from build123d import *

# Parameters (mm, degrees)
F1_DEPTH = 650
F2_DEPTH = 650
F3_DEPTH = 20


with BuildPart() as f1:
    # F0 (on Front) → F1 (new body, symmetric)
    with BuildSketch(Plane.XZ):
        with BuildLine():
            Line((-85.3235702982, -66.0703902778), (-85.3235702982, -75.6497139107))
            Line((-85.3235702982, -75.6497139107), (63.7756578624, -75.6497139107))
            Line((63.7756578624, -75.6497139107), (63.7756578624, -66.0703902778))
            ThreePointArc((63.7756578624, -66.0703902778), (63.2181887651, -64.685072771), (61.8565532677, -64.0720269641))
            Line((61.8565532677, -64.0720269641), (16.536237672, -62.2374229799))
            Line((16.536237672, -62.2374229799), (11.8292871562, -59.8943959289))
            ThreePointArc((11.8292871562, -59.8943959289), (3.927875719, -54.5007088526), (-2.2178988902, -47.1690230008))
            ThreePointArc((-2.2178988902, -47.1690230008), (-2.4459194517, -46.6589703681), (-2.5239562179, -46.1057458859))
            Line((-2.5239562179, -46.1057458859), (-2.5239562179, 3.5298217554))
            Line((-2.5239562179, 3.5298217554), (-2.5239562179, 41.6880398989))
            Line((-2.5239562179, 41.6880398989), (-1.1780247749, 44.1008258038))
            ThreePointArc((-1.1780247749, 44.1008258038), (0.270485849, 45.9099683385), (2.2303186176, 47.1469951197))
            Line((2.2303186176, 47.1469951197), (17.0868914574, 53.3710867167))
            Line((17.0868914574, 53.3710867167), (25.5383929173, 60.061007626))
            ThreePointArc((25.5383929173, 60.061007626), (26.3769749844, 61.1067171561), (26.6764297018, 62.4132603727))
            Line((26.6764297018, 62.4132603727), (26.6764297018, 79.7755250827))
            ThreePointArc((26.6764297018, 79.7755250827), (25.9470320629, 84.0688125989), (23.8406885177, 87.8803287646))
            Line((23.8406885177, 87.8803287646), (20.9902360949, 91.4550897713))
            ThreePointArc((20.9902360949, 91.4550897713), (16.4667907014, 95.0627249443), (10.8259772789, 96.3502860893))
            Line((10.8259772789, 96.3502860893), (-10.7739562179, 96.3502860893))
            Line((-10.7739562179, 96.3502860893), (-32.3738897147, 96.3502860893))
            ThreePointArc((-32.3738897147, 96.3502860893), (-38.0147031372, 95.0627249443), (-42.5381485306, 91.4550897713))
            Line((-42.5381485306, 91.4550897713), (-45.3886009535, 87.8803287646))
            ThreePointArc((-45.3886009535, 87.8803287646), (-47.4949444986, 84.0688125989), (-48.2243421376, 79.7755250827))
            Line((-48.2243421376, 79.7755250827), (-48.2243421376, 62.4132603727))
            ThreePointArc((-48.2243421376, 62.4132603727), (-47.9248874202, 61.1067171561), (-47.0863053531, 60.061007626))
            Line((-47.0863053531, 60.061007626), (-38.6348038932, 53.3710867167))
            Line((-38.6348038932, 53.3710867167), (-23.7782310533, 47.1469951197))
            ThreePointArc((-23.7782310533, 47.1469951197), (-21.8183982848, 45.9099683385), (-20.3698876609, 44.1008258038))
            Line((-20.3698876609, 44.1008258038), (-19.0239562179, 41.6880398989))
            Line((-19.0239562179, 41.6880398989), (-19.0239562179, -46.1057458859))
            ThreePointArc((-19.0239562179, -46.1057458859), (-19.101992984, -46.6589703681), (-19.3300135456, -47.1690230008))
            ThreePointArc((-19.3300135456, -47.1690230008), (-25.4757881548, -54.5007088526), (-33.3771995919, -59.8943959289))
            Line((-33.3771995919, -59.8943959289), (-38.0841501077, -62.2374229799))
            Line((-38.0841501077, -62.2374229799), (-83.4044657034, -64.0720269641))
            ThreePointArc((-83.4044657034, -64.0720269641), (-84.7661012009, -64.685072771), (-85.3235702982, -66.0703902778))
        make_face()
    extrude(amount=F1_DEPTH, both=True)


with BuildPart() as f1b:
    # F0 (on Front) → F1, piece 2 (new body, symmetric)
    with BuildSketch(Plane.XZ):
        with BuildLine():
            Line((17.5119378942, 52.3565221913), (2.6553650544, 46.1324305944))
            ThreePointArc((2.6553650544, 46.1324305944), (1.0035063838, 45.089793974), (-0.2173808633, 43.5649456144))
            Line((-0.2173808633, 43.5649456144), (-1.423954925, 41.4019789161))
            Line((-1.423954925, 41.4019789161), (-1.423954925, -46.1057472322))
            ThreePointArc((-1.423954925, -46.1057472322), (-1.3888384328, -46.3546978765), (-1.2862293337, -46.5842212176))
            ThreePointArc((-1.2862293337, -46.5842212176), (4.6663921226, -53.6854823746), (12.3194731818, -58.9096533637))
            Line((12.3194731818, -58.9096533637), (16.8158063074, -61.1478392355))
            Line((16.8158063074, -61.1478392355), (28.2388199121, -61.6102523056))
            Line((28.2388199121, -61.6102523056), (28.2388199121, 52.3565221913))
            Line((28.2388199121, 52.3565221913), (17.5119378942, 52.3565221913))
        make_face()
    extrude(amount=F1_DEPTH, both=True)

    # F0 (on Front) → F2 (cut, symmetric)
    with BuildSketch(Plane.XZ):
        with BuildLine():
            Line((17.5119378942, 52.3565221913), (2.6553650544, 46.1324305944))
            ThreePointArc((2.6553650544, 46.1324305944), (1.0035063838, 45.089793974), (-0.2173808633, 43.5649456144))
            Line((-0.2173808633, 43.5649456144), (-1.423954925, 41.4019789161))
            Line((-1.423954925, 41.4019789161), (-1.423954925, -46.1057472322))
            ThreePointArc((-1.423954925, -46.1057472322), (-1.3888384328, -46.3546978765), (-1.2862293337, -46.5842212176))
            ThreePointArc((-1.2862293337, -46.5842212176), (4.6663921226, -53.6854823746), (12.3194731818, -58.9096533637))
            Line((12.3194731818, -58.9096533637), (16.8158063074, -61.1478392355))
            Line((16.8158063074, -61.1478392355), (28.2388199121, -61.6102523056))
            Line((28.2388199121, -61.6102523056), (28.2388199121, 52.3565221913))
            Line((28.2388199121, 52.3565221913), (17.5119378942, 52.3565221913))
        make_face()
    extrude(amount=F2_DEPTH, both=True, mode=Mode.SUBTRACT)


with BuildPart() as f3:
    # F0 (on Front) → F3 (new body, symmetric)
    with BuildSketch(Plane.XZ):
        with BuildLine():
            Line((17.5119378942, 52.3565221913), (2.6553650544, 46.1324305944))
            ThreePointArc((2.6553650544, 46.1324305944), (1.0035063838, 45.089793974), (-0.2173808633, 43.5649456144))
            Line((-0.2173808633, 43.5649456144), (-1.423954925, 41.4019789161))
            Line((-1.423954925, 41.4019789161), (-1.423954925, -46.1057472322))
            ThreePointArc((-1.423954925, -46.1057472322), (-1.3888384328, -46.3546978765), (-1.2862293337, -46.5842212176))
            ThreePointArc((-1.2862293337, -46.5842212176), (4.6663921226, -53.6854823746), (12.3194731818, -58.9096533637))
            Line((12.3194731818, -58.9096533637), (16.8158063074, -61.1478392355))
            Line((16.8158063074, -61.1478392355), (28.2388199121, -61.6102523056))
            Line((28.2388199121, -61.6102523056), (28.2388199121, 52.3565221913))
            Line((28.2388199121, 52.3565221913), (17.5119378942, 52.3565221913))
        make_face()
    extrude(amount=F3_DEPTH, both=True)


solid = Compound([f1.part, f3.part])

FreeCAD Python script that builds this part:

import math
import FreeCAD as App
import Part
import Sketcher

doc = App.newDocument("Part")
params = doc.addObject("Spreadsheet::Sheet", "Params")
for row, (alias, value) in enumerate([
    ("sketch1_radius", "2 mm"),
    ("sketch1_radius2", "35 mm"),
    ("sketch1_radius3", "7 mm"),
    ("sketch1_radius4", "3 mm"),
    ("sketch1_radius5", "13 mm"),
    ("pad1_length", "1300 mm"),
    ("sketch2_radius", "5.899999 mm"),
    ("sketch2_radius2", "0.899999 mm"),
    ("sketch2_radius3", "33.899999 mm"),
    ("pad2_length", "1300 mm"),
    ("sketch3_radius", "5.899999 mm"),
    ("sketch3_radius2", "0.899999 mm"),
    ("sketch3_radius3", "33.899999 mm"),
    ("pocket1_length", "1300 mm"),
    ("sketch4_radius", "5.899999 mm"),
    ("sketch4_radius2", "0.899999 mm"),
    ("sketch4_radius3", "33.899999 mm"),
    ("pad3_length", "40 mm"),
], start=1):
    params.set(f"A{row}", alias)
    params.set(f"B{row}", "=" + value)
    params.setAlias(f"B{row}", alias)

body = doc.addObject("PartDesign::Body", "Body")

sketch1 = doc.addObject("Sketcher::SketchObject", "Sketch")
body.addObject(sketch1)
sketch1.AttachmentSupport = (doc.XZ_Plane, [""])
sketch1.MapMode = "FlatFace"
sketch1.addGeometry(Part.LineSegment(App.Vector(-85.3, -66.1, 0), App.Vector(-85.3, -75.6, 0)), False)
sketch1.addGeometry(Part.LineSegment(App.Vector(-85.3, -75.6, 0), App.Vector(63.8, -75.6, 0)), False)
sketch1.addGeometry(Part.LineSegment(App.Vector(63.8, -75.6, 0), App.Vector(63.8, -66.1, 0)), False)
sketch1.addGeometry(Part.ArcOfCircle(Part.Circle(App.Vector(61.8, -66.1, 0), App.Vector(0, 0, 1), 2), math.radians(0), math.radians(88)), False)
sketch1.addGeometry(Part.LineSegment(App.Vector(61.9, -64.1, 0), App.Vector(16.5, -62.2, 0)), False)
sketch1.addGeometry(Part.LineSegment(App.Vector(16.5, -62.2, 0), App.Vector(11.8, -59.9, 0)), False)
sketch1.addGeometry(Part.ArcOfCircle(Part.Circle(App.Vector(27.4, -28.6, 0), App.Vector(0, 0, 1), 35), math.radians(-148), math.radians(-116)), False)
sketch1.addGeometry(Part.ArcOfCircle(Part.Circle(App.Vector(-0.5, -46.1, 0), App.Vector(0, 0, 1), 2), math.radians(-180), math.radians(-148)), False)
sketch1.addGeometry(Part.LineSegment(App.Vector(-2.5, -46.1, 0), App.Vector(-2.5, 41.7, 0)), False)
sketch1.addGeometry(Part.LineSegment(App.Vector(-2.5, 41.7, 0), App.Vector(-1.2, 44.1, 0)), False)
sketch1.addGeometry(Part.ArcOfCircle(Part.Circle(App.Vector(4.9, 40.7, 0), App.Vector(0, 0, 1), 7), math.radians(113), math.radians(151)), False)
sketch1.addGeometry(Part.LineSegment(App.Vector(2.2, 47.1, 0), App.Vector(17.1, 53.4, 0)), False)
sketch1.addGeometry(Part.LineSegment(App.Vector(17.1, 53.4, 0), App.Vector(25.5, 60.1, 0)), False)
sketch1.addGeometry(Part.ArcOfCircle(Part.Circle(App.Vector(23.7, 62.4, 0), App.Vector(0, 0, 1), 3), math.radians(-52), math.radians(0)), False)
sketch1.addGeometry(Part.LineSegment(App.Vector(26.7, 62.4, 0), App.Vector(26.7, 79.8, 0)), False)
sketch1.addGeometry(Part.ArcOfCircle(Part.Circle(App.Vector(13.7, 79.8, 0), App.Vector(0, 0, 1), 13), math.radians(0), math.radians(39)), False)
sketch1.addGeometry(Part.LineSegment(App.Vector(23.8, 87.9, 0), App.Vector(21, 91.5, 0)), False)
sketch1.addGeometry(Part.ArcOfCircle(Part.Circle(App.Vector(10.8, 83.4, 0), App.Vector(0, 0, 1), 13), math.radians(39), math.radians(90)), False)
sketch1.addGeometry(Part.LineSegment(App.Vector(10.8, 96.4, 0), App.Vector(-32.4, 96.4, 0)), False)
sketch1.addGeometry(Part.ArcOfCircle(Part.Circle(App.Vector(-32.4, 83.4, 0), App.Vector(0, 0, 1), 13), math.radians(90), math.radians(141)), False)
sketch1.addGeometry(Part.LineSegment(App.Vector(-42.5, 91.5, 0), App.Vector(-45.4, 87.9, 0)), False)
sketch1.addGeometry(Part.ArcOfCircle(Part.Circle(App.Vector(-35.2, 79.8, 0), App.Vector(0, 0, 1), 13), math.radians(141), math.radians(180)), False)
sketch1.addGeometry(Part.LineSegment(App.Vector(-48.2, 79.8, 0), App.Vector(-48.2, 62.4, 0)), False)
sketch1.addGeometry(Part.ArcOfCircle(Part.Circle(App.Vector(-45.2, 62.4, 0), App.Vector(0, 0, 1), 3), math.radians(180), math.radians(232)), False)
sketch1.addGeometry(Part.LineSegment(App.Vector(-47.1, 60.1, 0), App.Vector(-38.6, 53.4, 0)), False)
sketch1.addGeometry(Part.LineSegment(App.Vector(-38.6, 53.4, 0), App.Vector(-23.8, 47.1, 0)), False)
sketch1.addGeometry(Part.ArcOfCircle(Part.Circle(App.Vector(-26.5, 40.7, 0), App.Vector(0, 0, 1), 7), math.radians(29), math.radians(67)), False)
sketch1.addGeometry(Part.LineSegment(App.Vector(-20.4, 44.1, 0), App.Vector(-19, 41.7, 0)), False)
sketch1.addGeometry(Part.LineSegment(App.Vector(-19, 41.7, 0), App.Vector(-19, -46.1, 0)), False)
sketch1.addGeometry(Part.ArcOfCircle(Part.Circle(App.Vector(-21, -46.1, 0), App.Vector(0, 0, 1), 2), math.radians(-32), math.radians(0)), False)
sketch1.addGeometry(Part.ArcOfCircle(Part.Circle(App.Vector(-49, -28.6, 0), App.Vector(0, 0, 1), 35), math.radians(-64), math.radians(-32)), False)
sketch1.addGeometry(Part.LineSegment(App.Vector(-33.4, -59.9, 0), App.Vector(-38.1, -62.2, 0)), False)
sketch1.addGeometry(Part.LineSegment(App.Vector(-38.1, -62.2, 0), App.Vector(-83.4, -64.1, 0)), False)
sketch1.addGeometry(Part.ArcOfCircle(Part.Circle(App.Vector(-83.3, -66.1, 0), App.Vector(0, 0, 1), 2), math.radians(92), math.radians(180)), False)
sketch1.addConstraint(Sketcher.Constraint("Coincident", 0, 2, 1, 1))
sketch1.addConstraint(Sketcher.Constraint("Coincident", 1, 2, 2, 1))
sketch1.addConstraint(Sketcher.Constraint("Tangent", 2, 2, 3, 1))
sketch1.addConstraint(Sketcher.Constraint("Tangent", 3, 2, 4, 1))
sketch1.addConstraint(Sketcher.Constraint("Coincident", 4, 2, 5, 1))
sketch1.addConstraint(Sketcher.Constraint("Tangent", 5, 2, 6, 2))
sketch1.addConstraint(Sketcher.Constraint("Tangent", 6, 1, 7, 2))
sketch1.addConstraint(Sketcher.Constraint("Tangent", 7, 1, 8, 1))
sketch1.addConstraint(Sketcher.Constraint("Coincident", 8, 2, 9, 1))
sketch1.addConstraint(Sketcher.Constraint("Tangent", 9, 2, 10, 2))
sketch1.addConstraint(Sketcher.Constraint("Tangent", 10, 1, 11, 1))
sketch1.addConstraint(Sketcher.Constraint("Coincident", 11, 2, 12, 1))
sketch1.addConstraint(Sketcher.Constraint("Tangent", 12, 2, 13, 1))
sketch1.addConstraint(Sketcher.Constraint("Tangent", 13, 2, 14, 1))
sketch1.addConstraint(Sketcher.Constraint("Tangent", 14, 2, 15, 1))
sketch1.addConstraint(Sketcher.Constraint("Tangent", 15, 2, 16, 1))
sketch1.addConstraint(Sketcher.Constraint("Tangent", 16, 2, 17, 1))
sketch1.addConstraint(Sketcher.Constraint("Tangent", 17, 2, 18, 1))
sketch1.addConstraint(Sketcher.Constraint("Tangent", 18, 2, 19, 1))
sketch1.addConstraint(Sketcher.Constraint("Tangent", 19, 2, 20, 1))
sketch1.addConstraint(Sketcher.Constraint("Tangent", 20, 2, 21, 1))
sketch1.addConstraint(Sketcher.Constraint("Tangent", 21, 2, 22, 1))
sketch1.addConstraint(Sketcher.Constraint("Tangent", 22, 2, 23, 1))
sketch1.addConstraint(Sketcher.Constraint("Tangent", 23, 2, 24, 1))
sketch1.addConstraint(Sketcher.Constraint("Coincident", 24, 2, 25, 1))
sketch1.addConstraint(Sketcher.Constraint("Tangent", 25, 2, 26, 2))
sketch1.addConstraint(Sketcher.Constraint("Tangent", 26, 1, 27, 1))
sketch1.addConstraint(Sketcher.Constraint("Coincident", 27, 2, 28, 1))
sketch1.addConstraint(Sketcher.Constraint("Tangent", 28, 2, 29, 2))
sketch1.addConstraint(Sketcher.Constraint("Tangent", 29, 1, 30, 2))
sketch1.addConstraint(Sketcher.Constraint("Tangent", 30, 1, 31, 1))
sketch1.addConstraint(Sketcher.Constraint("Coincident", 31, 2, 32, 1))
sketch1.addConstraint(Sketcher.Constraint("Tangent", 32, 2, 33, 1))
sketch1.addConstraint(Sketcher.Constraint("Tangent", 33, 2, 0, 1))
sketch1.addConstraint(Sketcher.Constraint("Vertical", 0))
sketch1.addConstraint(Sketcher.Constraint("Horizontal", 1))
sketch1.addConstraint(Sketcher.Constraint("Vertical", 2))
sketch1.addConstraint(Sketcher.Constraint("Vertical", 8))
sketch1.addConstraint(Sketcher.Constraint("Vertical", 14))
sketch1.addConstraint(Sketcher.Constraint("Horizontal", 18))
sketch1.addConstraint(Sketcher.Constraint("Vertical", 22))
sketch1.addConstraint(Sketcher.Constraint("Vertical", 28))
sketch1.addConstraint(Sketcher.Constraint("Equal", 3, 7))
sketch1.addConstraint(Sketcher.Constraint("Equal", 15, 17))
sketch1.addConstraint(Sketcher.Constraint("Equal", 17, 19))
sketch1.addConstraint(Sketcher.Constraint("Equal", 19, 21))
sketch1.addConstraint(Sketcher.Constraint("Equal", 13, 23))
sketch1.addConstraint(Sketcher.Constraint("Equal", 10, 26))
sketch1.addConstraint(Sketcher.Constraint("Equal", 7, 29))
sketch1.addConstraint(Sketcher.Constraint("Equal", 6, 30))
sketch1.addConstraint(Sketcher.Constraint("Equal", 29, 33))
sketch1.addConstraint(Sketcher.Constraint("Horizontal", 15, 3, 21, 3))
sketch1.addConstraint(Sketcher.Constraint("Horizontal", 13, 3, 23, 3))
sketch1.addConstraint(Sketcher.Constraint("Horizontal", 10, 3, 26, 3))
sketch1.addConstraint(Sketcher.Constraint("Horizontal", 7, 3, 29, 3))
sketch1.addConstraint(Sketcher.Constraint("Horizontal", 6, 3, 30, 3))
sketch1.addConstraint(Sketcher.Constraint("Horizontal", 3, 3, 33, 3))
sketch1.addConstraint(Sketcher.Constraint("Horizontal", 16, 2, 19, 2))
sketch1.addConstraint(Sketcher.Constraint("Horizontal", 12, 2, 23, 2))
sketch1.addConstraint(Sketcher.Constraint("Horizontal", 11, 2, 24, 2))
sketch1.addConstraint(Sketcher.Constraint("Horizontal", 10, 1, 25, 2))
sketch1.addConstraint(Sketcher.Constraint("Horizontal", 9, 2, 26, 1))
sketch1.addConstraint(Sketcher.Constraint("Horizontal", 8, 2, 27, 2))
sketch1.addConstraint(Sketcher.Constraint("Horizontal", 5, 2, 30, 1))
sketch1.addConstraint(Sketcher.Constraint("Horizontal", 4, 2, 31, 2))
sketch1.addConstraint(Sketcher.Constraint("Equal", 4, 32))
sketch1.addConstraint(Sketcher.Constraint("Radius", 3, 2.0))
sketch1.addConstraint(Sketcher.Constraint("Radius", 6, 35.0))
sketch1.addConstraint(Sketcher.Constraint("Radius", 10, 7.0))
sketch1.addConstraint(Sketcher.Constraint("Radius", 13, 3.0))
sketch1.addConstraint(Sketcher.Constraint("Radius", 15, 13.0))
sketch1.addConstraint(Sketcher.Constraint("DistanceX", 29, 3, 7, 3, 20.5))
sketch1.addConstraint(Sketcher.Constraint("Distance", 9, 2.762801))
sketch1.addConstraint(Sketcher.Constraint("DistanceX", 1, 1, 1, 2, 149.099228))
sketch1.addConstraint(Sketcher.Constraint("DistanceX", 6, 1, -1, 1, 2.217899))
sketch1.addConstraint(Sketcher.Constraint("DistanceX", 20, 2, -1, 1, 45.388601))
sketch1.addConstraint(Sketcher.Constraint("DistanceX", 30, 1, -1, 1, 33.3772))
sketch1.addConstraint(Sketcher.Constraint("DistanceX", 10, 3, 3, 3, 56.840501))
sketch1.addConstraint(Sketcher.Constraint("DistanceY", 6, 3, 15, 3, 108.337199))
sketch1.addConstraint(Sketcher.Constraint("DistanceX", 21, 3, 10, 3, 40.159499))
sketch1.addConstraint(Sketcher.Constraint("DistanceY", 4, 2, 6, 1, 15.0684))
sketch1.addConstraint(Sketcher.Constraint("DistanceY", 9, 2, 15, 3, 35.674699))
sketch1.addConstraint(Sketcher.Constraint("DistanceX", 11, 2, 12, 2, 8.451501))
sketch1.addConstraint(Sketcher.Constraint("Distance", 11, 16.107671))
sketch1.addConstraint(Sketcher.Constraint("Distance", 12, 10.778818))
sketch1.addConstraint(Sketcher.Constraint("Distance", 16, 4.572089))
sketch1.addConstraint(Sketcher.Constraint("DistanceX", 18, 2, 18, 1, 43.199867))
sketch1.addConstraint(Sketcher.Constraint("DistanceY", 0, 2, 0, 1, 9.579324))
sketch1.addConstraint(Sketcher.Constraint("DistanceY", 3, 3, -1, 1, 66.07039))
sketch1.addConstraint(Sketcher.Constraint("DistanceY", -1, 1, 10, 3, 40.690692))
sketch1.setExpression("Constraints[66]", "Params.sketch1_radius")
sketch1.setExpression("Constraints[67]", "Params.sketch1_radius2")
sketch1.setExpression("Constraints[68]", "Params.sketch1_radius3")
sketch1.setExpression("Constraints[69]", "Params.sketch1_radius4")
sketch1.setExpression("Constraints[70]", "Params.sketch1_radius5")
pad1 = doc.addObject("PartDesign::Pad", "Pad")
body.addObject(pad1)
pad1.Profile = sketch1
pad1.setExpression("Length", "Params.pad1_length")
pad1.Midplane = True
body2 = doc.addObject("PartDesign::Body", "Body001")

sketch2 = doc.addObject("Sketcher::SketchObject", "Sketch001")
body2.addObject(sketch2)
sketch2.AttachmentSupport = (doc.getObject("XZ_Plane001"), [""])
sketch2.MapMode = "FlatFace"
sketch2.addGeometry(Part.LineSegment(App.Vector(17.511938, 52.356522, 0), App.Vector(2.655365, 46.132431, 0)), False)
sketch2.addGeometry(Part.ArcOfCircle(Part.Circle(App.Vector(4.935157, 40.690691, 0), App.Vector(0, 0, 1), 5.899999), math.radians(112.731019), math.radians(150.845783)), False)
sketch2.addGeometry(Part.LineSegment(App.Vector(-0.217381, 43.564946, 0), App.Vector(-1.423955, 41.401979, 0)), False)
sketch2.addGeometry(Part.LineSegment(App.Vector(-1.423955, 41.401979, 0), App.Vector(-1.423955, -46.105747, 0)), False)
sketch2.addGeometry(Part.ArcOfCircle(Part.Circle(App.Vector(-0.523956, -46.105747, 0), App.Vector(0, 0, 1), 0.899999), math.radians(180), math.radians(212.116233)), False)
sketch2.addGeometry(Part.ArcOfCircle(Part.Circle(App.Vector(27.426098, -28.561675, 0), App.Vector(0, 0, 1), 33.899999), math.radians(-147.883767), math.radians(-116.463215)), False)
sketch2.addGeometry(Part.LineSegment(App.Vector(12.319473, -58.909653, 0), App.Vector(16.815806, -61.147839, 0)), False)
sketch2.addGeometry(Part.LineSegment(App.Vector(16.815806, -61.147839, 0), App.Vector(28.23882, -61.610252, 0)), False)
sketch2.addGeometry(Part.LineSegment(App.Vector(28.23882, -61.610252, 0), App.Vector(28.23882, 52.356522, 0)), False)
sketch2.addGeometry(Part.LineSegment(App.Vector(28.23882, 52.356522, 0), App.Vector(17.511938, 52.356522, 0)), False)
sketch2.addConstraint(Sketcher.Constraint("Coincident", 0, 2, 1, 1))
sketch2.addConstraint(Sketcher.Constraint("Coincident", 1, 2, 2, 1))
sketch2.addConstraint(Sketcher.Constraint("Coincident", 2, 2, 3, 1))
sketch2.addConstraint(Sketcher.Constraint("Coincident", 3, 2, 4, 1))
sketch2.addConstraint(Sketcher.Constraint("Coincident", 4, 2, 5, 1))
sketch2.addConstraint(Sketcher.Constraint("Coincident", 5, 2, 6, 1))
sketch2.addConstraint(Sketcher.Constraint("Coincident", 6, 2, 7, 1))
sketch2.addConstraint(Sketcher.Constraint("Coincident", 7, 2, 8, 1))
sketch2.addConstraint(Sketcher.Constraint("Coincident", 8, 2, 9, 1))
sketch2.addConstraint(Sketcher.Constraint("Coincident", 9, 2, 0, 1))
sketch2.addConstraint(Sketcher.Constraint("Vertical", 3))
sketch2.addConstraint(Sketcher.Constraint("Vertical", 8))
sketch2.addConstraint(Sketcher.Constraint("Horizontal", 9))
sketch2.addConstraint(Sketcher.Constraint("Radius", 1, 5.899999))
sketch2.addConstraint(Sketcher.Constraint("Radius", 4, 0.899999))
sketch2.addConstraint(Sketcher.Constraint("Radius", 5, 33.899999))
sketch2.addConstraint(Sketcher.Constraint("DistanceY", 4, 2, 2, 2, 87.9862))
sketch2.addConstraint(Sketcher.Constraint("DistanceY", 7, 2, 5, 2, 2.700599))
sketch2.addConstraint(Sketcher.Constraint("DistanceX", 1, 2, 8, 2, 28.456201))
sketch2.addConstraint(Sketcher.Constraint("Distance", 0, 16.107671))
sketch2.addConstraint(Sketcher.Constraint("Distance", 2, 2.476741))
sketch2.addConstraint(Sketcher.Constraint("Distance", 7, 11.432369))
sketch2.addConstraint(Sketcher.Constraint("DistanceX", 9, 2, 9, 1, 10.726882))
sketch2.addConstraint(Sketcher.Constraint("DistanceY", 3, 2, 3, 1, 87.507726))
sketch2.addConstraint(Sketcher.Constraint("DistanceY", 8, 1, 8, 2, 113.966774))
sketch2.addConstraint(Sketcher.Constraint("DistanceY", -1, 1, 1, 3, 40.690691))
sketch2.addConstraint(Sketcher.Constraint("DistanceY", -1, 1, 0, 2, 46.132431))
sketch2.addConstraint(Sketcher.Constraint("DistanceX", 1, 2, -1, 1, 0.217381))
sketch2.addConstraint(Sketcher.Constraint("DistanceY", -1, 1, 2, 2, 41.401979))
sketch2.addConstraint(Sketcher.Constraint("DistanceX", 4, 2, -1, 1, 1.286229))
sketch2.addConstraint(Sketcher.Constraint("DistanceY", 6, 2, -1, 1, 61.147839))
sketch2.addConstraint(Sketcher.Constraint("DistanceX", 1, 3, 5, 3, 22.490941))
sketch2.addConstraint(Sketcher.Constraint("DistanceX", 4, 3, 0, 2, 3.179321))
sketch2.setExpression("Constraints[13]", "Params.sketch2_radius")
sketch2.setExpression("Constraints[14]", "Params.sketch2_radius2")
sketch2.setExpression("Constraints[15]", "Params.sketch2_radius3")
pad2 = doc.addObject("PartDesign::Pad", "Pad001")
body2.addObject(pad2)
pad2.Profile = sketch2
pad2.setExpression("Length", "Params.pad2_length")
pad2.Midplane = True

sketch3 = doc.addObject("Sketcher::SketchObject", "Sketch002")
body2.addObject(sketch3)
sketch3.AttachmentSupport = (doc.getObject("XZ_Plane001"), [""])
sketch3.MapMode = "FlatFace"
sketch3.addGeometry(Part.LineSegment(App.Vector(17.511938, 52.356522, 0), App.Vector(2.655365, 46.132431, 0)), False)
sketch3.addGeometry(Part.ArcOfCircle(Part.Circle(App.Vector(4.935157, 40.690691, 0), App.Vector(0, 0, 1), 5.899999), math.radians(112.731019), math.radians(150.845783)), False)
sketch3.addGeometry(Part.LineSegment(App.Vector(-0.217381, 43.564946, 0), App.Vector(-1.423955, 41.401979, 0)), False)
sketch3.addGeometry(Part.LineSegment(App.Vector(-1.423955, 41.401979, 0), App.Vector(-1.423955, -46.105747, 0)), False)
sketch3.addGeometry(Part.ArcOfCircle(Part.Circle(App.Vector(-0.523956, -46.105747, 0), App.Vector(0, 0, 1), 0.899999), math.radians(180), math.radians(212.116233)), False)
sketch3.addGeometry(Part.ArcOfCircle(Part.Circle(App.Vector(27.426098, -28.561675, 0), App.Vector(0, 0, 1), 33.899999), math.radians(-147.883767), math.radians(-116.463215)), False)
sketch3.addGeometry(Part.LineSegment(App.Vector(12.319473, -58.909653, 0), App.Vector(16.815806, -61.147839, 0)), False)
sketch3.addGeometry(Part.LineSegment(App.Vector(16.815806, -61.147839, 0), App.Vector(28.23882, -61.610252, 0)), False)
sketch3.addGeometry(Part.LineSegment(App.Vector(28.23882, -61.610252, 0), App.Vector(28.23882, 52.356522, 0)), False)
sketch3.addGeometry(Part.LineSegment(App.Vector(28.23882, 52.356522, 0), App.Vector(17.511938, 52.356522, 0)), False)
sketch3.addConstraint(Sketcher.Constraint("Coincident", 0, 2, 1, 1))
sketch3.addConstraint(Sketcher.Constraint("Coincident", 1, 2, 2, 1))
sketch3.addConstraint(Sketcher.Constraint("Coincident", 2, 2, 3, 1))
sketch3.addConstraint(Sketcher.Constraint("Coincident", 3, 2, 4, 1))
sketch3.addConstraint(Sketcher.Constraint("Coincident", 4, 2, 5, 1))
sketch3.addConstraint(Sketcher.Constraint("Coincident", 5, 2, 6, 1))
sketch3.addConstraint(Sketcher.Constraint("Coincident", 6, 2, 7, 1))
sketch3.addConstraint(Sketcher.Constraint("Coincident", 7, 2, 8, 1))
sketch3.addConstraint(Sketcher.Constraint("Coincident", 8, 2, 9, 1))
sketch3.addConstraint(Sketcher.Constraint("Coincident", 9, 2, 0, 1))
sketch3.addConstraint(Sketcher.Constraint("Vertical", 3))
sketch3.addConstraint(Sketcher.Constraint("Vertical", 8))
sketch3.addConstraint(Sketcher.Constraint("Horizontal", 9))
sketch3.addConstraint(Sketcher.Constraint("Radius", 1, 5.899999))
sketch3.addConstraint(Sketcher.Constraint("Radius", 4, 0.899999))
sketch3.addConstraint(Sketcher.Constraint("Radius", 5, 33.899999))
sketch3.addConstraint(Sketcher.Constraint("DistanceY", 4, 2, 2, 2, 87.9862))
sketch3.addConstraint(Sketcher.Constraint("DistanceY", 7, 2, 5, 2, 2.700599))
sketch3.addConstraint(Sketcher.Constraint("DistanceX", 1, 2, 8, 2, 28.456201))
sketch3.addConstraint(Sketcher.Constraint("Distance", 0, 16.107671))
sketch3.addConstraint(Sketcher.Constraint("Distance", 2, 2.476741))
sketch3.addConstraint(Sketcher.Constraint("Distance", 7, 11.432369))
sketch3.addConstraint(Sketcher.Constraint("DistanceX", 9, 2, 9, 1, 10.726882))
sketch3.addConstraint(Sketcher.Constraint("DistanceY", 3, 2, 3, 1, 87.507726))
sketch3.addConstraint(Sketcher.Constraint("DistanceY", 8, 1, 8, 2, 113.966774))
sketch3.addConstraint(Sketcher.Constraint("DistanceY", -1, 1, 1, 3, 40.690691))
sketch3.addConstraint(Sketcher.Constraint("DistanceY", -1, 1, 0, 2, 46.132431))
sketch3.addConstraint(Sketcher.Constraint("DistanceX", 1, 2, -1, 1, 0.217381))
sketch3.addConstraint(Sketcher.Constraint("DistanceY", -1, 1, 2, 2, 41.401979))
sketch3.addConstraint(Sketcher.Constraint("DistanceX", 4, 2, -1, 1, 1.286229))
sketch3.addConstraint(Sketcher.Constraint("DistanceY", 6, 2, -1, 1, 61.147839))
sketch3.addConstraint(Sketcher.Constraint("DistanceX", 1, 3, 5, 3, 22.490941))
sketch3.addConstraint(Sketcher.Constraint("DistanceX", 4, 3, 0, 2, 3.179321))
sketch3.setExpression("Constraints[13]", "Params.sketch3_radius")
sketch3.setExpression("Constraints[14]", "Params.sketch3_radius2")
sketch3.setExpression("Constraints[15]", "Params.sketch3_radius3")
pocket1 = doc.addObject("PartDesign::Pocket", "Pocket")
body2.addObject(pocket1)
pocket1.Profile = sketch3
pocket1.setExpression("Length", "Params.pocket1_length")
pocket1.Midplane = True
body3 = doc.addObject("PartDesign::Body", "Body002")

sketch4 = doc.addObject("Sketcher::SketchObject", "Sketch003")
body3.addObject(sketch4)
sketch4.AttachmentSupport = (doc.getObject("XZ_Plane002"), [""])
sketch4.MapMode = "FlatFace"
sketch4.addGeometry(Part.LineSegment(App.Vector(17.511938, 52.356522, 0), App.Vector(2.655365, 46.132431, 0)), False)
sketch4.addGeometry(Part.ArcOfCircle(Part.Circle(App.Vector(4.935157, 40.690691, 0), App.Vector(0, 0, 1), 5.899999), math.radians(112.731019), math.radians(150.845783)), False)
sketch4.addGeometry(Part.LineSegment(App.Vector(-0.217381, 43.564946, 0), App.Vector(-1.423955, 41.401979, 0)), False)
sketch4.addGeometry(Part.LineSegment(App.Vector(-1.423955, 41.401979, 0), App.Vector(-1.423955, -46.105747, 0)), False)
sketch4.addGeometry(Part.ArcOfCircle(Part.Circle(App.Vector(-0.523956, -46.105747, 0), App.Vector(0, 0, 1), 0.899999), math.radians(180), math.radians(212.116233)), False)
sketch4.addGeometry(Part.ArcOfCircle(Part.Circle(App.Vector(27.426098, -28.561675, 0), App.Vector(0, 0, 1), 33.899999), math.radians(-147.883767), math.radians(-116.463215)), False)
sketch4.addGeometry(Part.LineSegment(App.Vector(12.319473, -58.909653, 0), App.Vector(16.815806, -61.147839, 0)), False)
sketch4.addGeometry(Part.LineSegment(App.Vector(16.815806, -61.147839, 0), App.Vector(28.23882, -61.610252, 0)), False)
sketch4.addGeometry(Part.LineSegment(App.Vector(28.23882, -61.610252, 0), App.Vector(28.23882, 52.356522, 0)), False)
sketch4.addGeometry(Part.LineSegment(App.Vector(28.23882, 52.356522, 0), App.Vector(17.511938, 52.356522, 0)), False)
sketch4.addConstraint(Sketcher.Constraint("Coincident", 0, 2, 1, 1))
sketch4.addConstraint(Sketcher.Constraint("Coincident", 1, 2, 2, 1))
sketch4.addConstraint(Sketcher.Constraint("Coincident", 2, 2, 3, 1))
sketch4.addConstraint(Sketcher.Constraint("Coincident", 3, 2, 4, 1))
sketch4.addConstraint(Sketcher.Constraint("Coincident", 4, 2, 5, 1))
sketch4.addConstraint(Sketcher.Constraint("Coincident", 5, 2, 6, 1))
sketch4.addConstraint(Sketcher.Constraint("Coincident", 6, 2, 7, 1))
sketch4.addConstraint(Sketcher.Constraint("Coincident", 7, 2, 8, 1))
sketch4.addConstraint(Sketcher.Constraint("Coincident", 8, 2, 9, 1))
sketch4.addConstraint(Sketcher.Constraint("Coincident", 9, 2, 0, 1))
sketch4.addConstraint(Sketcher.Constraint("Vertical", 3))
sketch4.addConstraint(Sketcher.Constraint("Vertical", 8))
sketch4.addConstraint(Sketcher.Constraint("Horizontal", 9))
sketch4.addConstraint(Sketcher.Constraint("Radius", 1, 5.899999))
sketch4.addConstraint(Sketcher.Constraint("Radius", 4, 0.899999))
sketch4.addConstraint(Sketcher.Constraint("Radius", 5, 33.899999))
sketch4.addConstraint(Sketcher.Constraint("DistanceY", 4, 2, 2, 2, 87.9862))
sketch4.addConstraint(Sketcher.Constraint("DistanceY", 7, 2, 5, 2, 2.700599))
sketch4.addConstraint(Sketcher.Constraint("DistanceX", 1, 2, 8, 2, 28.456201))
sketch4.addConstraint(Sketcher.Constraint("Distance", 0, 16.107671))
sketch4.addConstraint(Sketcher.Constraint("Distance", 2, 2.476741))
sketch4.addConstraint(Sketcher.Constraint("Distance", 7, 11.432369))
sketch4.addConstraint(Sketcher.Constraint("DistanceX", 9, 2, 9, 1, 10.726882))
sketch4.addConstraint(Sketcher.Constraint("DistanceY", 3, 2, 3, 1, 87.507726))
sketch4.addConstraint(Sketcher.Constraint("DistanceY", 8, 1, 8, 2, 113.966774))
sketch4.addConstraint(Sketcher.Constraint("DistanceY", -1, 1, 1, 3, 40.690691))
sketch4.addConstraint(Sketcher.Constraint("DistanceY", -1, 1, 0, 2, 46.132431))
sketch4.addConstraint(Sketcher.Constraint("DistanceX", 1, 2, -1, 1, 0.217381))
sketch4.addConstraint(Sketcher.Constraint("DistanceY", -1, 1, 2, 2, 41.401979))
sketch4.addConstraint(Sketcher.Constraint("DistanceX", 4, 2, -1, 1, 1.286229))
sketch4.addConstraint(Sketcher.Constraint("DistanceY", 6, 2, -1, 1, 61.147839))
sketch4.addConstraint(Sketcher.Constraint("DistanceX", 1, 3, 5, 3, 22.490941))
sketch4.addConstraint(Sketcher.Constraint("DistanceX", 4, 3, 0, 2, 3.179321))
sketch4.setExpression("Constraints[13]", "Params.sketch4_radius")
sketch4.setExpression("Constraints[14]", "Params.sketch4_radius2")
sketch4.setExpression("Constraints[15]", "Params.sketch4_radius3")
pad3 = doc.addObject("PartDesign::Pad", "Pad002")
body3.addObject(pad3)
pad3.Profile = sketch4
pad3.setExpression("Length", "Params.pad3_length")
pad3.Midplane = True

doc.recompute()
